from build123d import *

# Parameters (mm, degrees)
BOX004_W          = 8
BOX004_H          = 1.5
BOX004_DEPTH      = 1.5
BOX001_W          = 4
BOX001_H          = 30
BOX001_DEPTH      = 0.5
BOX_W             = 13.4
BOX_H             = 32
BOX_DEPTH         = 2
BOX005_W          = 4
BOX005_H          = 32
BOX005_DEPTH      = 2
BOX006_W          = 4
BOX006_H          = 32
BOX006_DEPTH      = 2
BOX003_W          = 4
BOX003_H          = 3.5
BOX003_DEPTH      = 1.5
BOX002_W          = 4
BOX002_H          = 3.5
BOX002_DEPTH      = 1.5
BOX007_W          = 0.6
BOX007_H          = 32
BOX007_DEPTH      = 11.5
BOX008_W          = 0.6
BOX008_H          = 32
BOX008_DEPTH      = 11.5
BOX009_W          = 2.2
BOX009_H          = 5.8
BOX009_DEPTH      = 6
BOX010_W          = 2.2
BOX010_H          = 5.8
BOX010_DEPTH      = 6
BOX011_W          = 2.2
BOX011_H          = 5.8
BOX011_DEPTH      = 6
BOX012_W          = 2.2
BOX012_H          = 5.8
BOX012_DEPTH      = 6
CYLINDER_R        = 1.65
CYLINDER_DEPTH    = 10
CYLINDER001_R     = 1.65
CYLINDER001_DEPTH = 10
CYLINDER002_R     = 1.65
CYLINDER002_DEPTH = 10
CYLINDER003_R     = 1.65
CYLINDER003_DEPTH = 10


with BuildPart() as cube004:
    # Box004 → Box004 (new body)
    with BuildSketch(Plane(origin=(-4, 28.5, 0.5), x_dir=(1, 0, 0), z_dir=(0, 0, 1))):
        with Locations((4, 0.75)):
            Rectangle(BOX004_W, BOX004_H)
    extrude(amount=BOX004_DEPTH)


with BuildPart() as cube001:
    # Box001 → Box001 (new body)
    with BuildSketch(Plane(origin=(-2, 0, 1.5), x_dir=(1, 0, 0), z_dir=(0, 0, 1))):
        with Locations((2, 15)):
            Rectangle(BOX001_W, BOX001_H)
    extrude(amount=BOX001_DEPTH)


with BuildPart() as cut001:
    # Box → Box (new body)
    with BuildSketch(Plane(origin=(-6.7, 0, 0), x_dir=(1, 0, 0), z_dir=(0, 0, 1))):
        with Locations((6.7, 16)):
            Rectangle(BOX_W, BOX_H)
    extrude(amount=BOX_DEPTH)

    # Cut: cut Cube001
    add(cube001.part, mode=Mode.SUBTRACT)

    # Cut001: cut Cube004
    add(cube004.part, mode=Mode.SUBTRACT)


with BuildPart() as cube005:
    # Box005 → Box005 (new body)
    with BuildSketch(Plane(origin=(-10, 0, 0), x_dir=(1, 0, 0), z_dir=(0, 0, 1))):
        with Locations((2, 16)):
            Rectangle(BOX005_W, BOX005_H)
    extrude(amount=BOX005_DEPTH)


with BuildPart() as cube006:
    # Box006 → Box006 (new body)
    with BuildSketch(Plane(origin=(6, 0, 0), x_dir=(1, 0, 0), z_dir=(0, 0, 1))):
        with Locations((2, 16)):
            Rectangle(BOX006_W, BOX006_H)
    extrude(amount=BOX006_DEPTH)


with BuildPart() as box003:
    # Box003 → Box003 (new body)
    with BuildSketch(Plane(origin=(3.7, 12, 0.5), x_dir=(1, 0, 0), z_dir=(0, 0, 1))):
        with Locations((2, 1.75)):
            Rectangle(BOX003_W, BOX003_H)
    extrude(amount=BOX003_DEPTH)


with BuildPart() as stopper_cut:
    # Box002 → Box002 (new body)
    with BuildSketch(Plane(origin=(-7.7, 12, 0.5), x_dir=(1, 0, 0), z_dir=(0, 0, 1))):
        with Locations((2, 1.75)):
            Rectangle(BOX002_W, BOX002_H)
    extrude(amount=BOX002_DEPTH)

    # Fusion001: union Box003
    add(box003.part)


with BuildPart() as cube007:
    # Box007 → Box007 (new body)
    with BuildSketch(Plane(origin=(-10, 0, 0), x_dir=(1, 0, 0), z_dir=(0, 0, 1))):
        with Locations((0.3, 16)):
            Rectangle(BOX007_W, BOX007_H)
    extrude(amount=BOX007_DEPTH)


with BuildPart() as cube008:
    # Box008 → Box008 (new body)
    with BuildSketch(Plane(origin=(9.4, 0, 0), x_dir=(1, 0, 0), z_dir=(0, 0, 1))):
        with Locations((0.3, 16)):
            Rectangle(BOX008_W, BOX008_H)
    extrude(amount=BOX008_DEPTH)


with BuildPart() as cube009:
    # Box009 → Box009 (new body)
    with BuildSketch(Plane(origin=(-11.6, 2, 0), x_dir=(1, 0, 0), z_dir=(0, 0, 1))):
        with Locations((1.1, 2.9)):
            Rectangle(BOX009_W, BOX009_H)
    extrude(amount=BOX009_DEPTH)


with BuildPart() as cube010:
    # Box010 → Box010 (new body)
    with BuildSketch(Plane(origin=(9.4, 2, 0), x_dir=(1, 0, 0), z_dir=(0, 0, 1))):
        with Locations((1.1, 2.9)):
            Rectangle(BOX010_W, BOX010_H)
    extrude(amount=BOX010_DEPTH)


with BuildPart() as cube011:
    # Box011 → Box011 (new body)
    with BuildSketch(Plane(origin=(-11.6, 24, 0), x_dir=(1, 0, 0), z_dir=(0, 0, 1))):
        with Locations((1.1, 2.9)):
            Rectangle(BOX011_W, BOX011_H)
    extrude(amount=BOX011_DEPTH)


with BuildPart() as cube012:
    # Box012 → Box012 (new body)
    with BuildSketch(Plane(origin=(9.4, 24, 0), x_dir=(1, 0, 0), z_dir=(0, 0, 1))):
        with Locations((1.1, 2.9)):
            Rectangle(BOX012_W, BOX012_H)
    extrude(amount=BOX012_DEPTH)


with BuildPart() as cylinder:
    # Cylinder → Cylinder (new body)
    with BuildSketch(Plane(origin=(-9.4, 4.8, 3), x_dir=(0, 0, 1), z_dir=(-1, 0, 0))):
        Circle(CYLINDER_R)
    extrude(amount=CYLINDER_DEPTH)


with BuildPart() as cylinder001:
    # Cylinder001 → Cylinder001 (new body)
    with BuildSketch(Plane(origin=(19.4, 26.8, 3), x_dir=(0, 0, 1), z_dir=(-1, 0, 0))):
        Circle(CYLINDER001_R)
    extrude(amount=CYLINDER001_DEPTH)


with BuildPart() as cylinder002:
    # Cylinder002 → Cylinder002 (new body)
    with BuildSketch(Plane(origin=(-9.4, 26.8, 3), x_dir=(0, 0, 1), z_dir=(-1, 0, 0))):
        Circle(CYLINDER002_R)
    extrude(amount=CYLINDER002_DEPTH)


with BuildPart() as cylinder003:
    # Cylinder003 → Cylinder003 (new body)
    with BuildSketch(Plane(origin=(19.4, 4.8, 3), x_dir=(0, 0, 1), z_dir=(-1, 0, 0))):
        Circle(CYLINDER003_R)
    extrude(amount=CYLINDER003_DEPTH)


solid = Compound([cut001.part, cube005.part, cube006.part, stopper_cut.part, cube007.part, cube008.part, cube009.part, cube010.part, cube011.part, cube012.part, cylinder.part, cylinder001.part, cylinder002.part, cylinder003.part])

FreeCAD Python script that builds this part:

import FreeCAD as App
import Part
import Sketcher

V = App.Vector
Q = App.Units.Quantity

doc = App.newDocument("Part")
body = doc.addObject("PartDesign::Body", "Body")

# Sketch on XY plane
sketch1 = body.newObject("Sketcher::SketchObject", "Sketch")
sketch1.AttachmentSupport = (doc.getObject("XY_Plane"), [""])
sketch1.MapMode = "FlatFace"
sketch1.AttachmentOffset = App.Placement(V(0, 0, 0.5), App.Rotation())
sketch1.addGeometry([
    Part.LineSegment(V(-4, 30, 0), V(-4, 28.5, 0)),
    Part.LineSegment(V(-4, 28.5, 0), V(4, 28.5, 0)),
    Part.LineSegment(V(4, 28.5, 0), V(4, 30, 0)),
    Part.LineSegment(V(4, 30, 0), V(-4, 30, 0)),
], False)
sketch1.addConstraint([
    Sketcher.Constraint("Coincident", 0, 2, 1, 1),
    Sketcher.Constraint("Coincident", 1, 2, 2, 1),
    Sketcher.Constraint("Coincident", 2, 2, 3, 1),
    Sketcher.Constraint("Coincident", 3, 2, 0, 1),
    Sketcher.Constraint("Vertical", 0),
    Sketcher.Constraint("Horizontal", 1),
    Sketcher.Constraint("Vertical", 2),
    Sketcher.Constraint("Horizontal", 3),
    Sketcher.Constraint("DistanceX", 1, 1, 1, 2, Q("8 mm")),
    Sketcher.Constraint("DistanceY", 0, 2, 0, 1, Q("1.5 mm")),
    Sketcher.Constraint("DistanceX", 0, 2, -1, 1, Q("4 mm")),
    Sketcher.Constraint("DistanceY", -1, 1, 2, 2, Q("30 mm")),
])
pad1 = body.newObject("PartDesign::Pad", "Pad")
pad1.Profile = sketch1
pad1.Length = 1.5
body2 = doc.addObject("PartDesign::Body", "Body001")

# Sketch on XY plane
sketch2 = body2.newObject("Sketcher::SketchObject", "Sketch001")
sketch2.AttachmentSupport = (doc.getObject("XY_Plane001"), [""])
sketch2.MapMode = "FlatFace"
sketch2.AttachmentOffset = App.Placement(V(0, 0, 1.5), App.Rotation())
sketch2.addGeometry([
    Part.LineSegment(V(-2, 30, 0), V(-2, 0, 0)),
    Part.LineSegment(V(-2, 0, 0), V(2, 0, 0)),
    Part.LineSegment(V(2, 0, 0), V(2, 30, 0)),
    Part.LineSegment(V(2, 30, 0), V(-2, 30, 0)),
], False)
sketch2.addConstraint([
    Sketcher.Constraint("Coincident", 0, 2, 1, 1),
    Sketcher.Constraint("Coincident", 1, 2, 2, 1),
    Sketcher.Constraint("Coincident", 2, 2, 3, 1),
    Sketcher.Constraint("Coincident", 3, 2, 0, 1),
    Sketcher.Constraint("Vertical", 0),
    Sketcher.Constraint("Horizontal", 1),
    Sketcher.Constraint("Vertical", 2),
    Sketcher.Constraint("Horizontal", 3),
    Sketcher.Constraint("Symmetric", 0, 2, 1, 2, -1, 1),
    Sketcher.Constraint("DistanceX", 1, 1, 1, 2, Q("4 mm")),
    Sketcher.Constraint("DistanceY", 0, 2, 0, 1, Q("30 mm")),
])
pad2 = body2.newObject("PartDesign::Pad", "Pad001")
pad2.Profile = sketch2
pad2.Length = 0.5
body3 = doc.addObject("PartDesign::Body", "Body002")

# Sketch on XY plane
sketch3 = body3.newObject("Sketcher::SketchObject", "Sketch002")
sketch3.AttachmentSupport = (doc.getObject("XY_Plane002"), [""])
sketch3.MapMode = "FlatFace"
sketch3.addGeometry([
    Part.LineSegment(V(-7, 32, 0), V(-7, 0, 0)),
    Part.LineSegment(V(-7, 0, 0), V(7, 0, 0)),
    Part.LineSegment(V(7, 0, 0), V(7, 32, 0)),
    Part.LineSegment(V(7, 32, 0), V(-7, 32, 0)),
], False)
sketch3.addConstraint([
    Sketcher.Constraint("Coincident", 0, 2, 1, 1),
    Sketcher.Constraint("Coincident", 1, 2, 2, 1),
    Sketcher.Constraint("Coincident", 2, 2, 3, 1),
    Sketcher.Constraint("Coincident", 3, 2, 0, 1),
    Sketcher.Constraint("Vertical", 0),
    Sketcher.Constraint("Horizontal", 1),
    Sketcher.Constraint("Vertical", 2),
    Sketcher.Constraint("Horizontal", 3),
    Sketcher.Constraint("Symmetric", 0, 2, 1, 2, -1, 1),
    Sketcher.Constraint("DistanceY", 0, 2, 0, 1, Q("32 mm")),
    Sketcher.Constraint("DistanceX", 1, 1, 1, 2, Q("13.4 mm")),
])
pad3 = body3.newObject("PartDesign::Pad", "Pad002")
pad3.Profile = sketch3
pad3.Length = 2
doc.recompute()

boolean = body3.newObject("PartDesign::Boolean", "Boolean")
boolean.Type = "Cut"
boolean.addObjects([body2])
doc.recompute()

boolean2 = body3.newObject("PartDesign::Boolean", "Boolean001")
boolean2.Type = "Cut"
boolean2.addObjects([body])
body4 = doc.addObject("PartDesign::Body", "Body003")

# Sketch on XY plane
sketch4 = body4.newObject("Sketcher::SketchObject", "Sketch003")
sketch4.AttachmentSupport = (doc.getObject("XY_Plane003"), [""])
sketch4.MapMode = "FlatFace"
sketch4.addGeometry([
    Part.LineSegment(V(-10, 32, 0), V(-10, 0, 0)),
    Part.LineSegment(V(-10, 0, 0), V(-6, 0, 0)),
    Part.LineSegment(V(-6, 0, 0), V(-6, 32, 0)),
    Part.LineSegment(V(-6, 32, 0), V(-10, 32, 0)),
], False)
sketch4.addConstraint([
    Sketcher.Constraint("Coincident", 0, 2, 1, 1),
    Sketcher.Constraint("Coincident", 1, 2, 2, 1),
    Sketcher.Constraint("Coincident", 2, 2, 3, 1),
    Sketcher.Constraint("Coincident", 3, 2, 0, 1),
    Sketcher.Constraint("Vertical", 0),
    Sketcher.Constraint("Horizontal", 1),
    Sketcher.Constraint("Vertical", 2),
    Sketcher.Constraint("Horizontal", 3),
    Sketcher.Constraint("PointOnObject", 0, 2, -1),
    Sketcher.Constraint("DistanceX", 1, 1, 1, 2, Q("4 mm")),
    Sketcher.Constraint("DistanceY", 0, 2, 0, 1, Q("32 mm")),
    Sketcher.Constraint("DistanceX", 0, 2, -1, 1, Q("10 mm")),
])
pad4 = body4.newObject("PartDesign::Pad", "Pad003")
pad4.Profile = sketch4
pad4.Length = 2
body5 = doc.addObject("PartDesign::Body", "Body004")

# Sketch on XY plane
sketch5 = body5.newObject("Sketcher::SketchObject", "Sketch004")
sketch5.AttachmentSupport = (doc.getObject("XY_Plane004"), [""])
sketch5.MapMode = "FlatFace"
sketch5.addGeometry([
    Part.LineSegment(V(6, 32, 0), V(6, 0, 0)),
    Part.LineSegment(V(6, 0, 0), V(10, 0, 0)),
    Part.LineSegment(V(10, 0, 0), V(10, 32, 0)),
    Part.LineSegment(V(10, 32, 0), V(6, 32, 0)),
], False)
sketch5.addConstraint([
    Sketcher.Constraint("Coincident", 0, 2, 1, 1),
    Sketcher.Constraint("Coincident", 1, 2, 2, 1),
    Sketcher.Constraint("Coincident", 2, 2, 3, 1),
    Sketcher.Constraint("Coincident", 3, 2, 0, 1),
    Sketcher.Constraint("Vertical", 0),
    Sketcher.Constraint("Horizontal", 1),
    Sketcher.Constraint("Vertical", 2),
    Sketcher.Constraint("Horizontal", 3),
    Sketcher.Constraint("PointOnObject", 0, 2, -1),
    Sketcher.Constraint("DistanceX", 1, 1, 1, 2, Q("4 mm")),
    Sketcher.Constraint("DistanceY", 0, 2, 0, 1, Q("32 mm")),
    Sketcher.Constraint("DistanceX", -1, 1, 0, 2, Q("6 mm")),
])
pad5 = body5.newObject("PartDesign::Pad", "Pad004")
pad5.Profile = sketch5
pad5.Length = 2
body6 = doc.addObject("PartDesign::Body", "Body005")

# Sketch on XY plane
sketch6 = body6.newObject("Sketcher::SketchObject", "Sketch005")
sketch6.AttachmentSupport = (doc.getObject("XY_Plane005"), [""])
sketch6.MapMode = "FlatFace"
sketch6.AttachmentOffset = App.Placement(V(0, 0, 0.5), App.Rotation())
sketch6.addGeometry([
    Part.LineSegment(V(3.7, 15.5, 0), V(3.7, 12, 0)),
    Part.LineSegment(V(3.7, 12, 0), V(7.7, 12, 0)),
    Part.LineSegment(V(7.7, 12, 0), V(7.7, 15.5, 0)),
    Part.LineSegment(V(7.7, 15.5, 0), V(3.7, 15.5, 0)),
], False)
sketch6.addConstraint([
    Sketcher.Constraint("Coincident", 0, 2, 1, 1),
    Sketcher.Constraint("Coincident", 1, 2, 2, 1),
    Sketcher.Constraint("Coincident", 2, 2, 3, 1),
    Sketcher.Constraint("Coincident", 3, 2, 0, 1),
    Sketcher.Constraint("Vertical", 0),
    Sketcher.Constraint("Horizontal", 1),
    Sketcher.Constraint("Vertical", 2),
    Sketcher.Constraint("Horizontal", 3),
    Sketcher.Constraint("DistanceX", 1, 1, 1, 2, Q("4 mm")),
    Sketcher.Constraint("DistanceY", 0, 2, 0, 1, Q("3.5 mm")),
    Sketcher.Constraint("DistanceY", -1, 1, 0, 2, Q("12 mm")),
    Sketcher.Constraint("DistanceX", -1, 1, 0, 2, Q("3.7 mm")),
])
pad6 = body6.newObject("PartDesign::Pad", "Pad005")
pad6.Profile = sketch6
pad6.Length = 1.5
body7 = doc.addObject("PartDesign::Body", "Body006")
body7.AllowCompound = True

# Sketch on XY plane
sketch7 = body7.newObject("Sketcher::SketchObject", "Sketch006")
sketch7.AttachmentSupport = (doc.getObject("XY_Plane006"), [""])
sketch7.MapMode = "FlatFace"
sketch7.AttachmentOffset = App.Placement(V(0, 0, 0.5), App.Rotation())
sketch7.addGeometry([
    Part.LineSegment(V(-7.7, 15.5, 0), V(-7.7, 12, 0)),
    Part.LineSegment(V(-7.7, 12, 0), V(-3.7, 12, 0)),
    Part.LineSegment(V(-3.7, 12, 0), V(-3.7, 15.5, 0)),
    Part.LineSegment(V(-3.7, 15.5, 0), V(-7.7, 15.5, 0)),
], False)
sketch7.addConstraint([
    Sketcher.Constraint("Coincident", 0, 2, 1, 1),
    Sketcher.Constraint("Coincident", 1, 2, 2, 1),
    Sketcher.Constraint("Coincident", 2, 2, 3, 1),
    Sketcher.Constraint("Coincident", 3, 2, 0, 1),
    Sketcher.Constraint("Vertical", 0),
    Sketcher.Constraint("Horizontal", 1),
    Sketcher.Constraint("Vertical", 2),
    Sketcher.Constraint("Horizontal", 3),
    Sketcher.Constraint("DistanceX", 1, 1, 1, 2, Q("4 mm")),
    Sketcher.Constraint("DistanceY", 0, 2, 0, 1, Q("3.5 mm")),
    Sketcher.Constraint("DistanceY", -1, 1, 0, 2, Q("12 mm")),
    Sketcher.Constraint("DistanceX", 0, 2, -1, 1, Q("7.7 mm")),
])
pad7 = body7.newObject("PartDesign::Pad", "Pad006")
pad7.Profile = sketch7
pad7.Length = 1.5
doc.recompute()

boolean3 = body7.newObject("PartDesign::Boolean", "Boolean002")
boolean3.Type = "Fuse"
boolean3.addObjects([body6])
body8 = doc.addObject("PartDesign::Body", "Body007")

# Sketch on XY plane
sketch8 = body8.newObject("Sketcher::SketchObject", "Sketch007")
sketch8.AttachmentSupport = (doc.getObject("XY_Plane007"), [""])
sketch8.MapMode = "FlatFace"
sketch8.addGeometry([
    Part.LineSegment(V(-10, 32, 0), V(-10, 0, 0)),
    Part.LineSegment(V(-10, 0, 0), V(-9.4, 0, 0)),
    Part.LineSegment(V(-9.4, 0, 0), V(-9.4, 32, 0)),
    Part.LineSegment(V(-9.4, 32, 0), V(-10, 32, 0)),
], False)
sketch8.addConstraint([
    Sketcher.Constraint("Coincident", 0, 2, 1, 1),
    Sketcher.Constraint("Coincident", 1, 2, 2, 1),
    Sketcher.Constraint("Coincident", 2, 2, 3, 1),
    Sketcher.Constraint("Coincident", 3, 2, 0, 1),
    Sketcher.Constraint("Vertical", 0),
    Sketcher.Constraint("Horizontal", 1),
    Sketcher.Constraint("Vertical", 2),
    Sketcher.Constraint("Horizontal", 3),
    Sketcher.Constraint("PointOnObject", 0, 2, -1),
    Sketcher.Constraint("DistanceY", 0, 2, 0, 1, Q("32 mm")),
    Sketcher.Constraint("DistanceX", 1, 1, 1, 2, Q("0.6 mm")),
    Sketcher.Constraint("DistanceX", 0, 2, -1, 1, Q("10 mm")),
])
pad8 = body8.newObject("PartDesign::Pad", "Pad007")
pad8.Profile = sketch8
pad8.Length = 11.5
body9 = doc.addObject("PartDesign::Body", "Body008")

# Sketch on XY plane
sketch9 = body9.newObject("Sketcher::SketchObject", "Sketch008")
sketch9.AttachmentSupport = (doc.getObject("XY_Plane008"), [""])
sketch9.MapMode = "FlatFace"
sketch9.addGeometry([
    Part.LineSegment(V(9.4, 32, 0), V(9.4, 0, 0)),
    Part.LineSegment(V(9.4, 0, 0), V(10, 0, 0)),
    Part.LineSegment(V(10, 0, 0), V(10, 32, 0)),
    Part.LineSegment(V(10, 32, 0), V(9.4, 32, 0)),
], False)
sketch9.addConstraint([
    Sketcher.Constraint("Coincident", 0, 2, 1, 1),
    Sketcher.Constraint("Coincident", 1, 2, 2, 1),
    Sketcher.Constraint("Coincident", 2, 2, 3, 1),
    Sketcher.Constraint("Coincident", 3, 2, 0, 1),
    Sketcher.Constraint("Vertical", 0),
    Sketcher.Constraint("Horizontal", 1),
    Sketcher.Constraint("Vertical", 2),
    Sketcher.Constraint("Horizontal", 3),
    Sketcher.Constraint("PointOnObject", 0, 2, -1),
    Sketcher.Constraint("DistanceY", 0, 2, 0, 1, Q("32 mm")),
    Sketcher.Constraint("DistanceX", 1, 1, 1, 2, Q("0.6 mm")),
    Sketcher.Constraint("DistanceX", -1, 1, 1, 2, Q("10 mm")),
])
pad9 = body9.newObject("PartDesign::Pad", "Pad008")
pad9.Profile = sketch9
pad9.Length = 11.5
body10 = doc.addObject("PartDesign::Body", "Body009")

# Sketch on XY plane
sketch10 = body10.newObject("Sketcher::SketchObject", "Sketch009")
sketch10.AttachmentSupport = (doc.getObject("XY_Plane009"), [""])
sketch10.MapMode = "FlatFace"
sketch10.addGeometry([
    Part.LineSegment(V(-11.6, 7.8, 0), V(-11.6, 2, 0)),
    Part.LineSegment(V(-11.6, 2, 0), V(-9.4, 2, 0)),
    Part.LineSegment(V(-9.4, 2, 0), V(-9.4, 7.8, 0)),
    Part.LineSegment(V(-9.4, 7.8, 0), V(-11.6, 7.8, 0)),
], False)
sketch10.addConstraint([
    Sketcher.Constraint("Coincident", 0, 2, 1, 1),
    Sketcher.Constraint("Coincident", 1, 2, 2, 1),
    Sketcher.Constraint("Coincident", 2, 2, 3, 1),
    Sketcher.Constraint("Coincident", 3, 2, 0, 1),
    Sketcher.Constraint("Vertical", 0),
    Sketcher.Constraint("Horizontal", 1),
    Sketcher.Constraint("Vertical", 2),
    Sketcher.Constraint("Horizontal", 3),
    Sketcher.Constraint("DistanceX", 1, 1, 1, 2, Q("2.2 mm")),
    Sketcher.Constraint("DistanceY", 0, 2, 0, 1, Q("5.8 mm")),
    Sketcher.Constraint("DistanceY", -1, 1, 0, 2, Q("2 mm")),
    Sketcher.Constraint("DistanceX", 0, 2, -1, 1, Q("11.6 mm")),
])
pad10 = body10.newObject("PartDesign::Pad", "Pad009")
pad10.Profile = sketch10
pad10.Length = 6
body11 = doc.addObject("PartDesign::Body", "Body010")

# Sketch on XY plane
sketch11 = body11.newObject("Sketcher::SketchObject", "Sketch010")
sketch11.AttachmentSupport = (doc.getObject("XY_Plane010"), [""])
sketch11.MapMode = "FlatFace"
sketch11.addGeometry([
    Part.LineSegment(V(9.4, 7.8, 0), V(9.4, 2, 0)),
    Part.LineSegment(V(9.4, 2, 0), V(11.6, 2, 0)),
    Part.LineSegment(V(11.6, 2, 0), V(11.6, 7.8, 0)),
    Part.LineSegment(V(11.6, 7.8, 0), V(9.4, 7.8, 0)),
], False)
sketch11.addConstraint([
    Sketcher.Constraint("Coincident", 0, 2, 1, 1),
    Sketcher.Constraint("Coincident", 1, 2, 2, 1),
    Sketcher.Constraint("Coincident", 2, 2, 3, 1),
    Sketcher.Constraint("Coincident", 3, 2, 0, 1),
    Sketcher.Constraint("Vertical", 0),
    Sketcher.Constraint("Horizontal", 1),
    Sketcher.Constraint("Vertical", 2),
    Sketcher.Constraint("Horizontal", 3),
    Sketcher.Constraint("DistanceX", 1, 1, 1, 2, Q("2.2 mm")),
    Sketcher.Constraint("DistanceY", 0, 2, 0, 1, Q("5.8 mm")),
    Sketcher.Constraint("DistanceY", -1, 1, 0, 2, Q("2 mm")),
    Sketcher.Constraint("DistanceX", -1, 1, 0, 2, Q("9.4 mm")),
])
pad11 = body11.newObject("PartDesign::Pad", "Pad010")
pad11.Profile = sketch11
pad11.Length = 6
body12 = doc.addObject("PartDesign::Body", "Body011")

# Sketch on XY plane
sketch12 = body12.newObject("Sketcher::SketchObject", "Sketch011")
sketch12.AttachmentSupport = (doc.getObject("XY_Plane011"), [""])
sketch12.MapMode = "FlatFace"
sketch12.addGeometry([
    Part.LineSegment(V(-11.6, 29.8, 0), V(-11.6, 24, 0)),
    Part.LineSegment(V(-11.6, 24, 0), V(-9.4, 24, 0)),
    Part.LineSegment(V(-9.4, 24, 0), V(-9.4, 29.8, 0)),
    Part.LineSegment(V(-9.4, 29.8, 0), V(-11.6, 29.8, 0)),
], False)
sketch12.addConstraint([
    Sketcher.Constraint("Coincident", 0, 2, 1, 1),
    Sketcher.Constraint("Coincident", 1, 2, 2, 1),
    Sketcher.Constraint("Coincident", 2, 2, 3, 1),
    Sketcher.Constraint("Coincident", 3, 2, 0, 1),
    Sketcher.Constraint("Vertical", 0),
    Sketcher.Constraint("Horizontal", 1),
    Sketcher.Constraint("Vertical", 2),
    Sketcher.Constraint("Horizontal", 3),
    Sketcher.Constraint("DistanceX", 1, 1, 1, 2, Q("2.2 mm")),
    Sketcher.Constraint("DistanceY", 0, 2, 0, 1, Q("5.8 mm")),
    Sketcher.Constraint("DistanceY", -1, 1, 0, 2, Q("24 mm")),
    Sketcher.Constraint("DistanceX", 0, 2, -1, 1, Q("11.6 mm")),
])
pad12 = body12.newObject("PartDesign::Pad", "Pad011")
pad12.Profile = sketch12
pad12.Length = 6
body13 = doc.addObject("PartDesign::Body", "Body012")

# Sketch on XY plane
sketch13 = body13.newObject("Sketcher::SketchObject", "Sketch012")
sketch13.AttachmentSupport = (doc.getObject("XY_Plane012"), [""])
sketch13.MapMode = "FlatFace"
sketch13.addGeometry([
    Part.LineSegment(V(9.4, 29.8, 0), V(9.4, 24, 0)),
    Part.LineSegment(V(9.4, 24, 0), V(11.6, 24, 0)),
    Part.LineSegment(V(11.6, 24, 0), V(11.6, 29.8, 0)),
    Part.LineSegment(V(11.6, 29.8, 0), V(9.4, 29.8, 0)),
], False)
sketch13.addConstraint([
    Sketcher.Constraint("Coincident", 0, 2, 1, 1),
    Sketcher.Constraint("Coincident", 1, 2, 2, 1),
    Sketcher.Constraint("Coincident", 2, 2, 3, 1),
    Sketcher.Constraint("Coincident", 3, 2, 0, 1),
    Sketcher.Constraint("Vertical", 0),
    Sketcher.Constraint("Horizontal", 1),
    Sketcher.Constraint("Vertical", 2),
    Sketcher.Constraint("Horizontal", 3),
    Sketcher.Constraint("DistanceX", 1, 1, 1, 2, Q("2.2 mm")),
    Sketcher.Constraint("DistanceY", 0, 2, 0, 1, Q("5.8 mm")),
    Sketcher.Constraint("DistanceY", -1, 1, 0, 2, Q("24 mm")),
    Sketcher.Constraint("DistanceX", -1, 1, 0, 2, Q("9.4 mm")),
])
pad13 = body13.newObject("PartDesign::Pad", "Pad012")
pad13.Profile = sketch13
pad13.Length = 6
body14 = doc.addObject("PartDesign::Body", "Body013")

# Sketch on YZ plane
sketch14 = body14.newObject("Sketcher::SketchObject", "Sketch013")
sketch14.AttachmentSupport = (doc.getObject("YZ_Plane013"), [""])
sketch14.MapMode = "FlatFace"
sketch14.AttachmentOffset = App.Placement(V(0, 0, -9.4), App.Rotation())
sketch14.addGeometry(Part.Circle(V(4.8, 3, 0), V(0, 0, 1), 1.6), False)
sketch14.addConstraint([
    Sketcher.Constraint("Diameter", 0, Q("3.3 mm")),
    Sketcher.Constraint("DistanceY", -1, 1, 0, 3, Q("3 mm")),
    Sketcher.Constraint("DistanceX", -1, 1, 0, 3, Q("4.8 mm")),
])
pad14 = body14.newObject("PartDesign::Pad", "Pad013")
pad14.Profile = sketch14
pad14.Length = 10
pad14.Reversed = True
body15 = doc.addObject("PartDesign::Body", "Body014")

# Sketch on YZ plane
sketch15 = body15.newObject("Sketcher::SketchObject", "Sketch014")
sketch15.AttachmentSupport = (doc.getObject("YZ_Plane014"), [""])
sketch15.MapMode = "FlatFace"
sketch15.AttachmentOffset = App.Placement(V(0, 0, 19.4), App.Rotation())
sketch15.addGeometry(Part.Circle(V(26.8, 3, 0), V(0, 0, 1), 1.6), False)
sketch15.addConstraint([
    Sketcher.Constraint("Diameter", 0, Q("3.3 mm")),
    Sketcher.Constraint("DistanceY", -1, 1, 0, 3, Q("3 mm")),
    Sketcher.Constraint("DistanceX", -1, 1, 0, 3, Q("26.8 mm")),
])
pad15 = body15.newObject("PartDesign::Pad", "Pad014")
pad15.Profile = sketch15
pad15.Length = 10
pad15.Reversed = True
body16 = doc.addObject("PartDesign::Body", "Body015")

# Sketch on YZ plane
sketch16 = body16.newObject("Sketcher::SketchObject", "Sketch015")
sketch16.AttachmentSupport = (doc.getObject("YZ_Plane015"), [""])
sketch16.MapMode = "FlatFace"
sketch16.AttachmentOffset = App.Placement(V(0, 0, -9.4), App.Rotation())
sketch16.addGeometry(Part.Circle(V(26.8, 3, 0), V(0, 0, 1), 1.6), False)
sketch16.addConstraint([
    Sketcher.Constraint("Diameter", 0, Q("3.3 mm")),
    Sketcher.Constraint("DistanceY", -1, 1, 0, 3, Q("3 mm")),
    Sketcher.Constraint("DistanceX", -1, 1, 0, 3, Q("26.8 mm")),
])
pad16 = body16.newObject("PartDesign::Pad", "Pad015")
pad16.Profile = sketch16
pad16.Length = 10
pad16.Reversed = True
body17 = doc.addObject("PartDesign::Body", "Body016")

# Sketch on YZ plane
sketch17 = body17.newObject("Sketcher::SketchObject", "Sketch016")
sketch17.AttachmentSupport = (doc.getObject("YZ_Plane016"), [""])
sketch17.MapMode = "FlatFace"
sketch17.AttachmentOffset = App.Placement(V(0, 0, 19.4), App.Rotation())
sketch17.addGeometry(Part.Circle(V(4.8, 3, 0), V(0, 0, 1), 1.6), False)
sketch17.addConstraint([
    Sketcher.Constraint("Diameter", 0, Q("3.3 mm")),
    Sketcher.Constraint("DistanceY", -1, 1, 0, 3, Q("3 mm")),
    Sketcher.Constraint("DistanceX", -1, 1, 0, 3, Q("4.8 mm")),
])
pad17 = body17.newObject("PartDesign::Pad", "Pad016")
pad17.Profile = sketch17
pad17.Length = 10
pad17.Reversed = True

doc.recompute()
